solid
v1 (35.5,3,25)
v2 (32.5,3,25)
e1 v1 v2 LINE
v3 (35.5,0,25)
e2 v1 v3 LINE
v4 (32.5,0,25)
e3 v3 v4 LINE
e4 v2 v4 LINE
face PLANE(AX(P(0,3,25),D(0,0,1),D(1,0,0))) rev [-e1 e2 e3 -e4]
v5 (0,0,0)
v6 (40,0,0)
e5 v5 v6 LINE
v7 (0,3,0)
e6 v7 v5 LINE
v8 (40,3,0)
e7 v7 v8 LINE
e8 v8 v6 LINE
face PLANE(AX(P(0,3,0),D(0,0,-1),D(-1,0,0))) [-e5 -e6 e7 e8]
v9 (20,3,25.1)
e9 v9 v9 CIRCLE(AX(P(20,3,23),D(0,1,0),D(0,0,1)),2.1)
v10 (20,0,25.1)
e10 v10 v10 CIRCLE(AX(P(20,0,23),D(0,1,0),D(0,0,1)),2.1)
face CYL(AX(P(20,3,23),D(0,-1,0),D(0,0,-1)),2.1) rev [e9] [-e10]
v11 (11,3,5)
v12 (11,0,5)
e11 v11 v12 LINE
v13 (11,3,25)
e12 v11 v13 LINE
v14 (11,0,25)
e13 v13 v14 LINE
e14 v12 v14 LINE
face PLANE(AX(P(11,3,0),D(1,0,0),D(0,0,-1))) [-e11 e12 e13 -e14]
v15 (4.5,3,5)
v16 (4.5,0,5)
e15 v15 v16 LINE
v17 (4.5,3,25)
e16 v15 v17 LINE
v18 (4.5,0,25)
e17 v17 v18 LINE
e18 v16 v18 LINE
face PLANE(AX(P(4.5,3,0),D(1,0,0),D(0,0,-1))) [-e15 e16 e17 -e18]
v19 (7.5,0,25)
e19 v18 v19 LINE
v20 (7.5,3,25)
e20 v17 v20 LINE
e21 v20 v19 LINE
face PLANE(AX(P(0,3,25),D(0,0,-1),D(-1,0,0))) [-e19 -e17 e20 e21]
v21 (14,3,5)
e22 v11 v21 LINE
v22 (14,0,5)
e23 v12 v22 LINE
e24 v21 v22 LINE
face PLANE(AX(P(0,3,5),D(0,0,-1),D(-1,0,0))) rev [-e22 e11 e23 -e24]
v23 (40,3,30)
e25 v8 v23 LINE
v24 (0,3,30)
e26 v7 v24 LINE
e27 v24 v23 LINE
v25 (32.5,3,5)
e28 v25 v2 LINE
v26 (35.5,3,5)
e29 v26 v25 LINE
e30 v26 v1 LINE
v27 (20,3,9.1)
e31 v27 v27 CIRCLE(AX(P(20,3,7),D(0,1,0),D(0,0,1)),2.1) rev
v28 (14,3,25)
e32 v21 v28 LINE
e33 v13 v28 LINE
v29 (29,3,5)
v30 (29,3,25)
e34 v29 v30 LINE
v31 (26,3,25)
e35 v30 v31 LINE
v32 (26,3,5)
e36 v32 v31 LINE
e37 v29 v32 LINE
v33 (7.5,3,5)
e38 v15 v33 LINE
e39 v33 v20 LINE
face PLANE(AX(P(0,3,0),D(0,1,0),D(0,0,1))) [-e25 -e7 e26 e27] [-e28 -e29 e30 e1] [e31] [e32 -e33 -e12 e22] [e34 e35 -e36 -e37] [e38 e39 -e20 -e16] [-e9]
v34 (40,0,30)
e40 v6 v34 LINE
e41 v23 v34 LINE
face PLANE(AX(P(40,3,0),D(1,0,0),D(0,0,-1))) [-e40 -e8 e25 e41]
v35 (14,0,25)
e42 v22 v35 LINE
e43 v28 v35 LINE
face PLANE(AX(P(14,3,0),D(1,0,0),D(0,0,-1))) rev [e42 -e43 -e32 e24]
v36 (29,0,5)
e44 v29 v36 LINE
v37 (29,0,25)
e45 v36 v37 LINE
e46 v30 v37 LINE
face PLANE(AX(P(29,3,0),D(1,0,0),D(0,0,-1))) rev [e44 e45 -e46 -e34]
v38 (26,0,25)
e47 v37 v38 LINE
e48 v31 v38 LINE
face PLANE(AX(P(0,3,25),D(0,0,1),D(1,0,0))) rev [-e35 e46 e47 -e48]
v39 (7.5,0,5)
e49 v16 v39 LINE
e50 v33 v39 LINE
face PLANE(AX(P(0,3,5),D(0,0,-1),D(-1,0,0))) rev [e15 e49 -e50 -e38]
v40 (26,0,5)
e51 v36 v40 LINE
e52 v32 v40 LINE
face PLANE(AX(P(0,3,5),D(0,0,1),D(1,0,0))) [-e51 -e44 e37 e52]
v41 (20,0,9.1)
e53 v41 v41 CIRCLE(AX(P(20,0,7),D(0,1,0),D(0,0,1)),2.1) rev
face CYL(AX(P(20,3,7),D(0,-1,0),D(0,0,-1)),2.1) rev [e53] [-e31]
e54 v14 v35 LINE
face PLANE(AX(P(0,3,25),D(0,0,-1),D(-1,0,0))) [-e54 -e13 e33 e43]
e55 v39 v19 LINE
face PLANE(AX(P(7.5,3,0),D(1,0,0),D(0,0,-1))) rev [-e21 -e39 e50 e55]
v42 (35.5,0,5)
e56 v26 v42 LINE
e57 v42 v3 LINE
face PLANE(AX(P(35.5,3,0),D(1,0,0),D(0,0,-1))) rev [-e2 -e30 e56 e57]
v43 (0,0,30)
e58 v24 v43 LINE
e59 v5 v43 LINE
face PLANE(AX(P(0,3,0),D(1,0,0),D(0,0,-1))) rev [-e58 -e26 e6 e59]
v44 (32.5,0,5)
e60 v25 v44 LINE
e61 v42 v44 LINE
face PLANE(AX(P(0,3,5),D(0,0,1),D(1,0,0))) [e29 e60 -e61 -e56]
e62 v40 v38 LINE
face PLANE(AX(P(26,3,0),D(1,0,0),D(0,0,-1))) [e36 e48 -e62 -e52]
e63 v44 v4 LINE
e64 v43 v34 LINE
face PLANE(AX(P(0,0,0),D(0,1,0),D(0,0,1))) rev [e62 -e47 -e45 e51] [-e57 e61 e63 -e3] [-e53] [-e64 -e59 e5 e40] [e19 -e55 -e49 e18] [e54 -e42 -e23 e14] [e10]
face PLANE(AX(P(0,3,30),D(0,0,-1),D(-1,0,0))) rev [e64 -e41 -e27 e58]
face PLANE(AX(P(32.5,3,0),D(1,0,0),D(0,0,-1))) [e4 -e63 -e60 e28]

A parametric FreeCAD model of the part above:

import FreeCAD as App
import Part
import Sketcher
Q = App.Units.Quantity


def add_polygon(sketch, points):
    """Adds a closed chain of lines whose ends are joined by coincident constraints."""
    first, n = sketch.GeometryCount, len(points)
    for a, b in zip(points, points[1:] + points[:1]):
        sketch.addGeometry(Part.LineSegment(App.Vector(*a, 0), App.Vector(*b, 0)), False)
    for i in range(n):
        sketch.addConstraint(Sketcher.Constraint("Coincident", first + i, 2, first + (i + 1) % n, 1))

doc = App.newDocument("Part")
body = doc.addObject("PartDesign::Body", "Body")

sketch1 = body.newObject("Sketcher::SketchObject", "Sketch")
sketch1.AttachmentSupport = (doc.getObject("XZ_Plane"), [""])
sketch1.MapMode = "FlatFace"
add_polygon(sketch1, [(0, 0), (0, 30), (40, 30), (40, 0)])
sketch1.addGeometry(Part.Circle(App.Vector(20, 23, 0), App.Vector(0, 0, 1), 2.1), False)
add_polygon(sketch1, [(7.5, 25), (4.5, 25), (4.5, 5), (7.5, 5)])
add_polygon(sketch1, [(14, 25), (11, 25), (11, 5), (14, 5)])
add_polygon(sketch1, [(29, 25), (26, 25), (26, 5), (29, 5)])
add_polygon(sketch1, [(35.5, 25), (32.5, 25), (32.5, 5), (35.5, 5)])
sketch1.addGeometry(Part.Circle(App.Vector(20, 7, 0), App.Vector(0, 0, 1), 2.1), False)
sketch1.addConstraint(Sketcher.Constraint("Vertical", 0))
sketch1.addConstraint(Sketcher.Constraint("Horizontal", 1))
sketch1.addConstraint(Sketcher.Constraint("Vertical", 2))
sketch1.addConstraint(Sketcher.Constraint("Horizontal", 3))
sketch1.addConstraint(Sketcher.Constraint("Horizontal", 5))
sketch1.addConstraint(Sketcher.Constraint("Vertical", 6))
sketch1.addConstraint(Sketcher.Constraint("Horizontal", 7))
sketch1.addConstraint(Sketcher.Constraint("Vertical", 8))
sketch1.addConstraint(Sketcher.Constraint("Horizontal", 9))
sketch1.addConstraint(Sketcher.Constraint("Vertical", 10))
sketch1.addConstraint(Sketcher.Constraint("Horizontal", 11))
sketch1.addConstraint(Sketcher.Constraint("Vertical", 12))
sketch1.addConstraint(Sketcher.Constraint("Horizontal", 13))
sketch1.addConstraint(Sketcher.Constraint("Vertical", 14))
sketch1.addConstraint(Sketcher.Constraint("Horizontal", 15))
sketch1.addConstraint(Sketcher.Constraint("Vertical", 16))
sketch1.addConstraint(Sketcher.Constraint("Horizontal", 17))
sketch1.addConstraint(Sketcher.Constraint("Vertical", 18))
sketch1.addConstraint(Sketcher.Constraint("Horizontal", 19))
sketch1.addConstraint(Sketcher.Constraint("Vertical", 20))
sketch1.addConstraint(Sketcher.Constraint("Coincident", 3, 2, -1, 1))
sketch1.addConstraint(Sketcher.Constraint("Equal", 4, 21))
sketch1.addConstraint(Sketcher.Constraint("Horizontal", 8, 2, 9, 2))
sketch1.addConstraint(Sketcher.Constraint("Horizontal", 7, 2, 10, 2))
sketch1.addConstraint(Sketcher.Constraint("Horizontal", 12, 2, 13, 2))
sketch1.addConstraint(Sketcher.Constraint("Horizontal", 11, 2, 14, 2))
sketch1.addConstraint(Sketcher.Constraint("Horizontal", 16, 2, 17, 2))
sketch1.addConstraint(Sketcher.Constraint("Horizontal", 15, 2, 18, 2))
sketch1.addConstraint(Sketcher.Constraint("Vertical", 4, 3, 21, 3))
sketch1.addConstraint(Sketcher.Constraint("Equal", 7, 9))
sketch1.addConstraint(Sketcher.Constraint("Equal", 11, 13))
sketch1.addConstraint(Sketcher.Constraint("Equal", 15, 17))
sketch1.addConstraint(Sketcher.Constraint("Diameter", 4, Q("4.2 mm")))
sketch1.addConstraint(Sketcher.Constraint("DistanceX", 1, 1, 1, 2, Q("40 mm")))
sketch1.addConstraint(Sketcher.Constraint("DistanceX", 5, 2, 5, 1, Q("3 mm")))
sketch1.addConstraint(Sketcher.Constraint("DistanceY", 0, 1, 0, 2, Q("30 mm")))
sketch1.addConstraint(Sketcher.Constraint("DistanceY", 6, 2, 6, 1, Q("20 mm")))
sketch1.addConstraint(Sketcher.Constraint("DistanceX", -1, 1, 4, 3, Q("20 mm")))
sketch1.addConstraint(Sketcher.Constraint("DistanceY", -1, 1, 4, 3, Q("23 mm")))
sketch1.addConstraint(Sketcher.Constraint("DistanceY", -1, 1, 21, 3, Q("7 mm")))
sketch1.addConstraint(Sketcher.Constraint("DistanceY", -1, 1, 5, 2, Q("25 mm")))
sketch1.addConstraint(Sketcher.Constraint("DistanceX", -1, 1, 9, 2, Q("11 mm")))
sketch1.addConstraint(Sketcher.Constraint("DistanceX", -1, 1, 13, 2, Q("26 mm")))
sketch1.addConstraint(Sketcher.Constraint("DistanceX", -1, 1, 5, 2, Q("4.5 mm")))
sketch1.addConstraint(Sketcher.Constraint("DistanceX", -1, 1, 17, 2, Q("32.5 mm")))
pad1 = body.newObject("PartDesign::Pad", "Pad")
pad1.Profile = sketch1
pad1.Length = 3
pad1.Reversed = True

doc.recompute()
